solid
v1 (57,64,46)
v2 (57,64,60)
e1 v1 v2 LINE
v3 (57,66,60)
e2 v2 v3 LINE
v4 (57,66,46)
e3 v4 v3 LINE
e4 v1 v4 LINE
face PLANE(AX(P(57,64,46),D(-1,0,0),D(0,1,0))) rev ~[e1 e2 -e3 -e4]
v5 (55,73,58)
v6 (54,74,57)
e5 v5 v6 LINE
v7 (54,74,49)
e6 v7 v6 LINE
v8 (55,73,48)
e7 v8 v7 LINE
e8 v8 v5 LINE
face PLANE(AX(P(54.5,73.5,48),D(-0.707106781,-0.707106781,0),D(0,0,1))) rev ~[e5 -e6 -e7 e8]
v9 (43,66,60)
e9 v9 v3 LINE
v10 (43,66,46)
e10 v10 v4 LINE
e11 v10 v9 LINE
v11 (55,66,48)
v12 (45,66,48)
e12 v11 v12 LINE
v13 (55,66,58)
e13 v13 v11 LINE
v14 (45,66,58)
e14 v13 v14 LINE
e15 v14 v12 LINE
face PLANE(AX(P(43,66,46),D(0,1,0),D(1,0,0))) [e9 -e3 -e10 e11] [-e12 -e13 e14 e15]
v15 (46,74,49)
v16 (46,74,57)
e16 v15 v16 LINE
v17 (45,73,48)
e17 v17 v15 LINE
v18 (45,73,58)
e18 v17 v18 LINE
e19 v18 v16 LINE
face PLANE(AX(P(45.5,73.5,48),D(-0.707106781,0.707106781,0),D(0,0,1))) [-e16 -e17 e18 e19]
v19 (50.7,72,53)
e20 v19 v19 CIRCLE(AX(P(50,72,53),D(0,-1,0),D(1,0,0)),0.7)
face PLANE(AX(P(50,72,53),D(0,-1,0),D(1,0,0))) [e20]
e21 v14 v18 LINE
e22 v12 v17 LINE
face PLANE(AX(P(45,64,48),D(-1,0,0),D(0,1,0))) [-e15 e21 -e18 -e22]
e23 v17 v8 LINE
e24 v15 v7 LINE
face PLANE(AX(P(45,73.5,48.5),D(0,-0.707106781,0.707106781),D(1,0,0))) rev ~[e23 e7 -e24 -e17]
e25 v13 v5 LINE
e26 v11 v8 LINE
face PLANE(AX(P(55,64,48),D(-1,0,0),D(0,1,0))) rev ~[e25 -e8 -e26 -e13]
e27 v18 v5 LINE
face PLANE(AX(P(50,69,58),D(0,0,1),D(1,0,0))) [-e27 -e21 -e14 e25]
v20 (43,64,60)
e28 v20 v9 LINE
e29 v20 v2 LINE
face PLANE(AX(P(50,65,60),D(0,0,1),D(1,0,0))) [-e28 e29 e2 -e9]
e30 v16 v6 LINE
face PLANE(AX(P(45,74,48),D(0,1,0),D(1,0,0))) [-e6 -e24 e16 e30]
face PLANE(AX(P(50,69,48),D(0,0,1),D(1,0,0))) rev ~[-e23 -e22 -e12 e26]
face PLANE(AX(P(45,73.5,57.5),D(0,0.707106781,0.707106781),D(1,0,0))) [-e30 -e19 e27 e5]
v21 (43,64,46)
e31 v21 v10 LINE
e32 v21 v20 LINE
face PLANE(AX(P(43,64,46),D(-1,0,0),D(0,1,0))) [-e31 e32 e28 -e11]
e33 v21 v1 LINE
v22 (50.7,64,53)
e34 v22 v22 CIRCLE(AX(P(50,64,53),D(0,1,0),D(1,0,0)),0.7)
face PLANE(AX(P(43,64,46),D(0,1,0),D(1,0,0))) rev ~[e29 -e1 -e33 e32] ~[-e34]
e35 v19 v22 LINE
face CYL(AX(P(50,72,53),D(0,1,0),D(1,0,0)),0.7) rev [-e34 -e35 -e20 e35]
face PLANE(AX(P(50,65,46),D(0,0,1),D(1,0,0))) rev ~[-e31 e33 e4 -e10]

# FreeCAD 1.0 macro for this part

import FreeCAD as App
import Part
import Sketcher


def edges_at(feature, points):
    """Names of the edges that pass closest to the given points."""
    edges = feature.Shape.Edges
    near = lambda p: min(range(len(edges)), key=lambda i: edges[i].distToShape(Part.Vertex(*p))[0])
    return sorted({f"Edge{near(p) + 1}" for p in points})

doc = App.newDocument("Part")
body = doc.addObject("PartDesign::Body", "Body")

sketch1 = body.newObject("Sketcher::SketchObject", "Sketch")
sketch1.AttachmentSupport = (doc.getObject("XY_Plane"), [""])
sketch1.MapMode = "FlatFace"
sketch1.addGeometry(Part.Circle(App.Vector(0, 0, 0), App.Vector(0, 0, 1), 0.7), False)
sketch1.addConstraint([
    Sketcher.Constraint("Coincident", 0, 3, -1, 1),
    Sketcher.Constraint("Diameter", 0, 1.4),
])
pad1 = body.newObject("PartDesign::Pad", "Pad")
pad1.Profile = sketch1
pad1.Length = 10
body2 = doc.addObject("PartDesign::Body", "Body001")
doc.recompute()

body.Placement = App.Placement(App.Vector(0, 0, 0), App.Rotation(App.Vector(1, 0, 0), 90))
boolean = body2.newObject("PartDesign::Boolean", "Boolean")
boolean.Type = "Fuse"
boolean.addObjects([body])
body3 = doc.addObject("PartDesign::Body", "Body002")
doc.recompute()

body2.Placement = App.Placement(App.Vector(50, 72, 53), App.Rotation(App.Vector(0, 0, 1), 0))
boolean2 = body3.newObject("PartDesign::Boolean", "Boolean001")
boolean2.Type = "Fuse"
boolean2.addObjects([body2])
body4 = doc.addObject("PartDesign::Body", "Body003")

sketch2 = body4.newObject("Sketcher::SketchObject", "Sketch001")
sketch2.AttachmentSupport = (doc.getObject("XY_Plane003"), [""])
sketch2.MapMode = "FlatFace"
sketch2.addGeometry([
    Part.LineSegment(App.Vector(-37, 2, 0), App.Vector(-37, 0, 0)),
    Part.LineSegment(App.Vector(-37, 0, 0), App.Vector(-23, 0, 0)),
    Part.LineSegment(App.Vector(-23, 0, 0), App.Vector(-23, 2, 0)),
    Part.LineSegment(App.Vector(-23, 2, 0), App.Vector(-37, 2, 0)),
], False)
sketch2.addConstraint([
    Sketcher.Constraint("Coincident", 0, 2, 1, 1),
    Sketcher.Constraint("Coincident", 1, 2, 2, 1),
    Sketcher.Constraint("Coincident", 2, 2, 3, 1),
    Sketcher.Constraint("Coincident", 3, 2, 0, 1),
    Sketcher.Constraint("Vertical", 0),
    Sketcher.Constraint("Horizontal", 1),
    Sketcher.Constraint("Vertical", 2),
    Sketcher.Constraint("Horizontal", 3),
    Sketcher.Constraint("PointOnObject", 0, 2, -1),
    Sketcher.Constraint("DistanceX", 1, 1, 1, 2, 14.0),
    Sketcher.Constraint("DistanceY", 0, 2, 0, 1, 2.0),
    Sketcher.Constraint("DistanceX", 0, 2, -1, 1, 37.0),
])
pad2 = body4.newObject("PartDesign::Pad", "Pad001")
pad2.Profile = sketch2
pad2.Length = 14
body5 = doc.addObject("PartDesign::Body", "Body004")

sketch3 = body5.newObject("Sketcher::SketchObject", "Sketch002")
sketch3.AttachmentSupport = (doc.getObject("XY_Plane004"), [""])
sketch3.MapMode = "FlatFace"
sketch3.AttachmentOffset = App.Placement(App.Vector(0, 0, 2), App.Rotation())
sketch3.addGeometry([
    Part.LineSegment(App.Vector(-35, 10, 0), App.Vector(-35, 0, 0)),
    Part.LineSegment(App.Vector(-35, 0, 0), App.Vector(-25, 0, 0)),
    Part.LineSegment(App.Vector(-25, 0, 0), App.Vector(-25, 10, 0)),
    Part.LineSegment(App.Vector(-25, 10, 0), App.Vector(-35, 10, 0)),
], False)
sketch3.addConstraint([
    Sketcher.Constraint("Coincident", 0, 2, 1, 1),
    Sketcher.Constraint("Coincident", 1, 2, 2, 1),
    Sketcher.Constraint("Coincident", 2, 2, 3, 1),
    Sketcher.Constraint("Coincident", 3, 2, 0, 1),
    Sketcher.Constraint("Vertical", 0),
    Sketcher.Constraint("Horizontal", 1),
    Sketcher.Constraint("Vertical", 2),
    Sketcher.Constraint("Horizontal", 3),
    Sketcher.Constraint("PointOnObject", 0, 2, -1),
    Sketcher.Constraint("Equal", 3, 0),
    Sketcher.Constraint("DistanceX", 1, 1, 1, 2, 10.0),
    Sketcher.Constraint("DistanceX", 0, 2, -1, 1, 35.0),
])
pad3 = body5.newObject("PartDesign::Pad", "Pad002")
pad3.Profile = sketch3
pad3.Length = 10
doc.recompute()

boolean3 = body5.newObject("PartDesign::Boolean", "Boolean002")
boolean3.Type = "Fuse"
boolean3.addObjects([body4])
body6 = doc.addObject("PartDesign::Body", "Body005")
doc.recompute()

body5.Placement = App.Placement(App.Vector(80, 64, 46), App.Rotation(App.Vector(0, 0, 1), 0))
boolean4 = body6.newObject("PartDesign::Boolean", "Boolean003")
boolean4.Type = "Fuse"
boolean4.addObjects([body5])
doc.recompute()

chamfer = body6.newObject("PartDesign::Chamfer", "Chamfer")
chamfer.Base = (boolean4, edges_at(boolean4, [
    (45, 74, 53),
    (50, 74, 48),
    (55, 74, 53),
    (50, 74, 58),
]))
chamfer.Size = 1
doc.recompute()

boolean5 = body6.newObject("PartDesign::Boolean", "Boolean004")
boolean5.Type = "Cut"
boolean5.addObjects([body3])

doc.recompute()
